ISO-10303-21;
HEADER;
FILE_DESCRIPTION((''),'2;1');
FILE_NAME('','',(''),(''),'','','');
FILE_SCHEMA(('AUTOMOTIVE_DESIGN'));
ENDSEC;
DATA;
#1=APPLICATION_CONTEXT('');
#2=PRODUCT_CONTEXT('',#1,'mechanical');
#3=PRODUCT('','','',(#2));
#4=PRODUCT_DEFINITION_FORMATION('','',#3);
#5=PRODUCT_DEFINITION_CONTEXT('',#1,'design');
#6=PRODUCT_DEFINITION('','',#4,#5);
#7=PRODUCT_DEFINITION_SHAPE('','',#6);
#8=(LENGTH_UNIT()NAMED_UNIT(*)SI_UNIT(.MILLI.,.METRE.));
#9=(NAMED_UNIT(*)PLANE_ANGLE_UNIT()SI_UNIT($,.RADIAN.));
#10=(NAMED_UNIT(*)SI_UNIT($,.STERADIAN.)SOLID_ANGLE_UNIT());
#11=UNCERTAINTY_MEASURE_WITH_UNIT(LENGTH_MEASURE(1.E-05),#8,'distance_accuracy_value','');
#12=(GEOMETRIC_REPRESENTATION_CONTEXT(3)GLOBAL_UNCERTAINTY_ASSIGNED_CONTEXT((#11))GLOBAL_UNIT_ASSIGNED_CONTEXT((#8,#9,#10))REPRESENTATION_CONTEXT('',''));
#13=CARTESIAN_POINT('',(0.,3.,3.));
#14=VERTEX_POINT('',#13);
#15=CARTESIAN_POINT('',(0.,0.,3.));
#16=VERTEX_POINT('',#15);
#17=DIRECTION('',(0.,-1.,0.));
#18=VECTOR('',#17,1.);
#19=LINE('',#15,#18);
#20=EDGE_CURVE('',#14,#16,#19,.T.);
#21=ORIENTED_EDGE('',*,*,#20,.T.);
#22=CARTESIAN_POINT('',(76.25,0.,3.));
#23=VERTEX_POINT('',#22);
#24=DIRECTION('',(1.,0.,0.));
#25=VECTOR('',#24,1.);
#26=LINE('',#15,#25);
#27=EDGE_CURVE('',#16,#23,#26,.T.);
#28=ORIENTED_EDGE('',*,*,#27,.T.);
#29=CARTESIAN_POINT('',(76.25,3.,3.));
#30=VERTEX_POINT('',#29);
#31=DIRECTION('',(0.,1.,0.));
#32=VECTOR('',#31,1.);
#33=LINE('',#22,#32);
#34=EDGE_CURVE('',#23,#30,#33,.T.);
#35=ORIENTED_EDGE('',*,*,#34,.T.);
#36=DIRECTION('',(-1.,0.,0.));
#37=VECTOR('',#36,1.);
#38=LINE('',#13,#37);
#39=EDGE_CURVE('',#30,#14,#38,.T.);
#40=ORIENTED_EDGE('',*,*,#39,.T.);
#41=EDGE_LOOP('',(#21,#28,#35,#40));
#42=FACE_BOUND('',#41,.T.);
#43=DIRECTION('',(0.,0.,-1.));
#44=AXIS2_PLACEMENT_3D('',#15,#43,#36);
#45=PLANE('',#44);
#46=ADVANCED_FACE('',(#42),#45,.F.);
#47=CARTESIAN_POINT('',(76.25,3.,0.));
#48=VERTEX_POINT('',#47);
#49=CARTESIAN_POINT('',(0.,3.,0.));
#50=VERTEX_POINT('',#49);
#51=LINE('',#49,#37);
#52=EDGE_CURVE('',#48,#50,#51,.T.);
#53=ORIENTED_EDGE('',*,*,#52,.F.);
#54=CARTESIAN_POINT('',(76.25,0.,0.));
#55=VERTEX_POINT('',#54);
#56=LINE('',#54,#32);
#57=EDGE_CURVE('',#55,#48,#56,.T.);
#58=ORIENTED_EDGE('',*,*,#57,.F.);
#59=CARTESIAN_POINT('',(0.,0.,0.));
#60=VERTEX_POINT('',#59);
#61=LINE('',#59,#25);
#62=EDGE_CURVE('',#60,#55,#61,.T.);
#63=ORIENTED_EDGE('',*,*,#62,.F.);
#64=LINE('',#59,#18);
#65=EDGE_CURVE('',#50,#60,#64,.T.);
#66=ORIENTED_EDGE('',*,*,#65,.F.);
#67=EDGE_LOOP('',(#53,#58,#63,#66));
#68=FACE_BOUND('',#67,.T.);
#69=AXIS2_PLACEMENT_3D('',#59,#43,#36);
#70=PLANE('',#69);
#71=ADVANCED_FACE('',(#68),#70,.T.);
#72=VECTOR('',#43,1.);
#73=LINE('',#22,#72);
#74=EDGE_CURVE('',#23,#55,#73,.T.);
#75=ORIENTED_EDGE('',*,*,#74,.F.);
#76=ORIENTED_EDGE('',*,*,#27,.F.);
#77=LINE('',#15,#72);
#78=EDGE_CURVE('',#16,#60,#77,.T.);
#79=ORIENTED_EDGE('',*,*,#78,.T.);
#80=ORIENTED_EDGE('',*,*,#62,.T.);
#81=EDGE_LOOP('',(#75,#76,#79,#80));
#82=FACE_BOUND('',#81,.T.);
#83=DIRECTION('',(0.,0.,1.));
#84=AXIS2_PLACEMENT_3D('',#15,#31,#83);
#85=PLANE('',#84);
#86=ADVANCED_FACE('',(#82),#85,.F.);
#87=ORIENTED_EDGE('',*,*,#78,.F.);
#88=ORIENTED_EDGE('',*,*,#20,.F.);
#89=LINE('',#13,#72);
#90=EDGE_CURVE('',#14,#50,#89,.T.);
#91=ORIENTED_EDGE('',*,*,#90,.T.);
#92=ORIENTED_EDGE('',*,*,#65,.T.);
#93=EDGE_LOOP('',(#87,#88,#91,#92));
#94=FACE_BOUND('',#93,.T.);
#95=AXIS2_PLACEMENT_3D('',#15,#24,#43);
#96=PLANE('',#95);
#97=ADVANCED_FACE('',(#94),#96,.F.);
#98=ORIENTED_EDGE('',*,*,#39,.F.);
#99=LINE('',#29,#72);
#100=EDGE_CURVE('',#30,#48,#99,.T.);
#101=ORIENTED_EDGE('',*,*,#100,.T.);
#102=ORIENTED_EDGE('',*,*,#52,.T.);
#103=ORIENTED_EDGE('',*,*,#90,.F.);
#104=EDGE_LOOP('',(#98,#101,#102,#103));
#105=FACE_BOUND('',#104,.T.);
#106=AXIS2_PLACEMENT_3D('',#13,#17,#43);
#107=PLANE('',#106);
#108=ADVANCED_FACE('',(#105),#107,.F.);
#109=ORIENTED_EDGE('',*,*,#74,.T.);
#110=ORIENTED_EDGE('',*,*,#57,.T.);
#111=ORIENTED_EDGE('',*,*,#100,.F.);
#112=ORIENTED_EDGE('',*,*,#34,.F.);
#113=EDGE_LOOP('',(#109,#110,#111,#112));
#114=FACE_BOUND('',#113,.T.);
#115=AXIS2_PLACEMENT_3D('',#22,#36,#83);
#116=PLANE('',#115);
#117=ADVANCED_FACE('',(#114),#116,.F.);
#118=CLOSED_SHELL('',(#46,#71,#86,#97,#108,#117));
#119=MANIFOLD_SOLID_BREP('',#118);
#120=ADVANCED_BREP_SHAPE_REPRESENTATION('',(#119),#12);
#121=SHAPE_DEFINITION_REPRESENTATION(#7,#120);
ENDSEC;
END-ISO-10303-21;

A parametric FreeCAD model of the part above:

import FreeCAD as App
import Part
import Sketcher


def add_polygon(sketch, points):
    """Adds a closed chain of lines whose ends are joined by coincident constraints."""
    first, n = sketch.GeometryCount, len(points)
    for a, b in zip(points, points[1:] + points[:1]):
        sketch.addGeometry(Part.LineSegment(App.Vector(*a, 0), App.Vector(*b, 0)), False)
    for i in range(n):
        sketch.addConstraint(Sketcher.Constraint("Coincident", first + i, 2, first + (i + 1) % n, 1))

doc = App.newDocument("Part")
body = doc.addObject("PartDesign::Body", "Body")

# Sketch on XY plane
sketch1 = doc.addObject("Sketcher::SketchObject", "Sketch")
body.addObject(sketch1)
sketch1.AttachmentSupport = (doc.XY_Plane, [""])
sketch1.MapMode = "FlatFace"
add_polygon(sketch1, [(0, 3), (0, 0), (76.2, 0), (76.2, 3)])  # lines 0-3
sketch1.addConstraint(Sketcher.Constraint("Vertical", 0))
sketch1.addConstraint(Sketcher.Constraint("Horizontal", 1))
sketch1.addConstraint(Sketcher.Constraint("Vertical", 2))
sketch1.addConstraint(Sketcher.Constraint("Horizontal", 3))
sketch1.addConstraint(Sketcher.Constraint("Coincident", 0, 2, -1, 1))
sketch1.addConstraint(Sketcher.Constraint("DistanceY", 0, 2, 0, 1, 3.0))
sketch1.addConstraint(Sketcher.Constraint("DistanceX", 1, 1, 1, 2, 76.25))
pad1 = doc.addObject("PartDesign::Pad", "Pad")
body.addObject(pad1)
pad1.Profile = sketch1
pad1.Length = 3

doc.recompute()
